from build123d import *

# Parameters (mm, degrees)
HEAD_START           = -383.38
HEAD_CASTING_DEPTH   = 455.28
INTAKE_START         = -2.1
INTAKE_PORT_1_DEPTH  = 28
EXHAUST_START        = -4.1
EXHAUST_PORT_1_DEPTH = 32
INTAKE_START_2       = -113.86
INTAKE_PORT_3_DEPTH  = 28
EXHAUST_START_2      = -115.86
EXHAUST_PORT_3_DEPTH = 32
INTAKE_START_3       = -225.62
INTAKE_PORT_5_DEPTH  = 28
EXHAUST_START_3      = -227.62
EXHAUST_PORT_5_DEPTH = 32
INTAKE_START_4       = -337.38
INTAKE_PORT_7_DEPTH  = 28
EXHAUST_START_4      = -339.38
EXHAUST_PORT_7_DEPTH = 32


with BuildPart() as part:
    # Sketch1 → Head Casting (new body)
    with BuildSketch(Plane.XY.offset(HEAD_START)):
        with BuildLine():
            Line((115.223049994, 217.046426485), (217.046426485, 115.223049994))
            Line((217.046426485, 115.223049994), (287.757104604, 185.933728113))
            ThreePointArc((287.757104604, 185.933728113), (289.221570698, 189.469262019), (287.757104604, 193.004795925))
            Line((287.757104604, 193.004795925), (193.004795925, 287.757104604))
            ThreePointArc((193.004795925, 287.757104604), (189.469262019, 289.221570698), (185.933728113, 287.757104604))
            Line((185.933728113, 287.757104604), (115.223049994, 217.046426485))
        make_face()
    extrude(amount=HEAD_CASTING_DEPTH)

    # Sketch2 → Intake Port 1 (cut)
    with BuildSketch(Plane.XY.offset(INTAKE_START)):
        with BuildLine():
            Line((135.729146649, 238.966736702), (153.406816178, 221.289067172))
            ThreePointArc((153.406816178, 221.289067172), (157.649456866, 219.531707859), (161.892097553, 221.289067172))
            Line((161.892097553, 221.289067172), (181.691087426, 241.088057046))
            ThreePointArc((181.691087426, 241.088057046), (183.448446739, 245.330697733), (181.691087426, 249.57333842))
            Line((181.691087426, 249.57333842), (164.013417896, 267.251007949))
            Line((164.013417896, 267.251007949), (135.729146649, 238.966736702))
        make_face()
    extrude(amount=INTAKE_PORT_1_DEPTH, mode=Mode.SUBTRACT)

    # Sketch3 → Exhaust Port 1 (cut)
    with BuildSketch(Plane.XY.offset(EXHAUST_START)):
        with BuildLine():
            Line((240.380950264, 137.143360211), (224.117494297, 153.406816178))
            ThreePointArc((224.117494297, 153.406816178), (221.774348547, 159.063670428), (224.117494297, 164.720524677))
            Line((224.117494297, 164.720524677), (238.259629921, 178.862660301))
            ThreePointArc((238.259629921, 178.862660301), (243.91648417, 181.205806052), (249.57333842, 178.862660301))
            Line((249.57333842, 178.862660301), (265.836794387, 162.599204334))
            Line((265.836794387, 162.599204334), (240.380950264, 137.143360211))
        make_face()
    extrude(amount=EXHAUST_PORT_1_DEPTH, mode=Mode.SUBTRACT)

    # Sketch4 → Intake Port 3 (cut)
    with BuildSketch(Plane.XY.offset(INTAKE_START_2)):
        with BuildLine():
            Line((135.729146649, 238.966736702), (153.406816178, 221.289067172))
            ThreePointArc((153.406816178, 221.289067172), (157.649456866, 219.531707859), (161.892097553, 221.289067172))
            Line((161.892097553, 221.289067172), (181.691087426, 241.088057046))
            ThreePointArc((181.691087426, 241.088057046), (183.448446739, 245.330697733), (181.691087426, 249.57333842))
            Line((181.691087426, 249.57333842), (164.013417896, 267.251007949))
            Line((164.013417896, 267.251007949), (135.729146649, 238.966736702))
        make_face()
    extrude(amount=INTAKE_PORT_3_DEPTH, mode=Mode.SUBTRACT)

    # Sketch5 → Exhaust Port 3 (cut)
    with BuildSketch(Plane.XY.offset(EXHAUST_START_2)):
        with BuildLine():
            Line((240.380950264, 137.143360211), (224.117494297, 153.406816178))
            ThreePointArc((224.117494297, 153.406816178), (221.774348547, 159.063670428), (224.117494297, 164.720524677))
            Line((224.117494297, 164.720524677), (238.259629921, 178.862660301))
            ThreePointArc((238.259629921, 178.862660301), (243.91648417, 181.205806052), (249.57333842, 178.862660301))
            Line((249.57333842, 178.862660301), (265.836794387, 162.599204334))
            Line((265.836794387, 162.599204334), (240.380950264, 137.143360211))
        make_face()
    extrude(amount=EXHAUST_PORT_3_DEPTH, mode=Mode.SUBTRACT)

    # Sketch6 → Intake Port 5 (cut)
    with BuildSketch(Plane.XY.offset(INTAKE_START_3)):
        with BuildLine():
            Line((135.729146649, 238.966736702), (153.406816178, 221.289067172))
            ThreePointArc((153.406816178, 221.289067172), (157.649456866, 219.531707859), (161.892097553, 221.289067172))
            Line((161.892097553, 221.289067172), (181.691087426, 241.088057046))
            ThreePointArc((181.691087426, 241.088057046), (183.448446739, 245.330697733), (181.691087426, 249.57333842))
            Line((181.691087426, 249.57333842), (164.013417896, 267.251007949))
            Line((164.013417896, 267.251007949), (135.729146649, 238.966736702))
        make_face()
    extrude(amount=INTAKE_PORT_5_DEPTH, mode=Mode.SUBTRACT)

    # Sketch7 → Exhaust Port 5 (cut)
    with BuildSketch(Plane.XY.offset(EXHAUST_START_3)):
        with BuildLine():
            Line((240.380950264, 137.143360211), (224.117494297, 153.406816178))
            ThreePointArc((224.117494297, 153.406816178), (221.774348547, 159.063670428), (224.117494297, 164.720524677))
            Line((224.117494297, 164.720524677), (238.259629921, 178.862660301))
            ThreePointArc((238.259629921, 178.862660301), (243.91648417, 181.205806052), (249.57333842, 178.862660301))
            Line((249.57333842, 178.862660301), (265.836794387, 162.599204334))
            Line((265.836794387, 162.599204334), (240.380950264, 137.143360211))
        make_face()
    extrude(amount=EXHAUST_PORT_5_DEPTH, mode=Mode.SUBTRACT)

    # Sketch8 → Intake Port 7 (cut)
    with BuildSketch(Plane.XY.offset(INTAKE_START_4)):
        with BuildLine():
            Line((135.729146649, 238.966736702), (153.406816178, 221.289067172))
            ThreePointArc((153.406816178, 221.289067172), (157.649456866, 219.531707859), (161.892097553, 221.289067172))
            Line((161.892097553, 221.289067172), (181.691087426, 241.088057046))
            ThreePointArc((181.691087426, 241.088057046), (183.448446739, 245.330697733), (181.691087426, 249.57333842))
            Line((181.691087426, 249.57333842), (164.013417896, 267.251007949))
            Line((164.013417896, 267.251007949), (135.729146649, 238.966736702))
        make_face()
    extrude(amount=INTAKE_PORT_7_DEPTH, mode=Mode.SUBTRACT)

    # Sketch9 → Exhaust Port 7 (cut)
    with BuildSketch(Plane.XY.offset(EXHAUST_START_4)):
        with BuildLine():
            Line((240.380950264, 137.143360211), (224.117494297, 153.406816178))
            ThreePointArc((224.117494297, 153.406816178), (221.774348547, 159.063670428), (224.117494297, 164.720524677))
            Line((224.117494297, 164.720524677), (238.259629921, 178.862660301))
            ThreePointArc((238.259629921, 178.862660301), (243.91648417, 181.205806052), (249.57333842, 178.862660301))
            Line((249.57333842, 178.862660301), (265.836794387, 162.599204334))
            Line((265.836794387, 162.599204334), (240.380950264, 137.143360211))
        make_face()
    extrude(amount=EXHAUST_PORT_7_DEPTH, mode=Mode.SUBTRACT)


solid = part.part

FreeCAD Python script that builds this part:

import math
import FreeCAD as App
import Part
import Sketcher
from FreeCAD import Vector

doc = App.newDocument("Part")
params = doc.addObject("Spreadsheet::Sheet", "Params")
for row, (alias, value) in enumerate([
    ("sketch1_radius", "5 mm"),
    ("sketch1_length", "144 mm"),
    ("sketch1_length2", "100 mm"),
    ("pad1_length", "455.28 mm"),
    ("sketch2_radius", "6 mm"),
    ("sketch2_length", "25 mm"),
    ("sketch2_length2", "28 mm"),
    ("pocket1_length", "28 mm"),
    ("sketch3_radius", "8 mm"),
    ("sketch3_length", "23 mm"),
    ("sketch3_length2", "36 mm"),
    ("pocket2_length", "32 mm"),
    ("sketch4_radius", "6 mm"),
    ("sketch4_length", "25 mm"),
    ("sketch4_length2", "28 mm"),
    ("pocket3_length", "28 mm"),
    ("sketch5_radius", "8 mm"),
    ("sketch5_length", "23 mm"),
    ("sketch5_length2", "36 mm"),
    ("pocket4_length", "32 mm"),
    ("sketch6_radius", "6 mm"),
    ("sketch6_length", "25 mm"),
    ("sketch6_length2", "28 mm"),
    ("pocket5_length", "28 mm"),
    ("sketch7_radius", "8 mm"),
    ("sketch7_length", "23 mm"),
    ("sketch7_length2", "36 mm"),
    ("pocket6_length", "32 mm"),
    ("sketch8_radius", "6 mm"),
    ("sketch8_length", "25 mm"),
    ("sketch8_length2", "28 mm"),
    ("pocket7_length", "28 mm"),
    ("sketch9_radius", "8 mm"),
    ("sketch9_length", "23 mm"),
    ("sketch9_length2", "36 mm"),
    ("pocket8_length", "32 mm"),
], start=1):
    params.set(f"A{row}", alias)
    params.set(f"B{row}", "=" + value)
    params.setAlias(f"B{row}", alias)

body = doc.addObject("PartDesign::Body", "Body")

sketch1 = body.newObject("Sketcher::SketchObject", "Sketch")
sketch1.AttachmentSupport = (doc.getObject("XY_Plane"), [""])
sketch1.MapMode = "FlatFace"
sketch1.AttachmentOffset = App.Placement(Vector(0, 0, -383.38), App.Rotation())
sketch1.addGeometry([
    Part.LineSegment(Vector(115.22305, 217.046426, 0), Vector(217.046426, 115.22305, 0)),
    Part.LineSegment(Vector(217.046426, 115.22305, 0), Vector(287.757105, 185.933728, 0)),
    Part.ArcOfCircle(Part.Circle(Vector(284.221571, 189.469262, 0), Vector(0, 0, 1), 5), math.radians(-45), math.radians(45)),
    Part.LineSegment(Vector(287.757105, 193.004796, 0), Vector(193.004796, 287.757105, 0)),
    Part.ArcOfCircle(Part.Circle(Vector(189.469262, 284.221571, 0), Vector(0, 0, 1), 5), math.radians(45), math.radians(135)),
    Part.LineSegment(Vector(185.933728, 287.757105, 0), Vector(115.22305, 217.046426, 0)),
], False)
sketch1.addConstraint([
    Sketcher.Constraint("Coincident", 0, 2, 1, 1),
    Sketcher.Constraint("Tangent", 1, 2, 2, 1),
    Sketcher.Constraint("Tangent", 2, 2, 3, 1),
    Sketcher.Constraint("Tangent", 3, 2, 4, 1),
    Sketcher.Constraint("Tangent", 4, 2, 5, 1),
    Sketcher.Constraint("Coincident", 5, 2, 0, 1),
    Sketcher.Constraint("Equal", 2, 4),
    Sketcher.Constraint("Perpendicular", 0, 1),
    Sketcher.Constraint("Perpendicular", 1, 3),
    Sketcher.Constraint("Perpendicular", 3, 5),
    Sketcher.Constraint("Horizontal", 3, 2, 4, 2),
    Sketcher.Constraint("Radius", 2, 5.0),
    Sketcher.Constraint("Distance", 0, 144.0),
    Sketcher.Constraint("Distance", 1, 100.0),
    Sketcher.Constraint("DistanceX", -1, 1, 2, 3, 284.221571),
    Sketcher.Constraint("DistanceY", -1, 1, 4, 3, 284.221571),
])
sketch1.setExpression("Constraints[11]", "Params.sketch1_radius")
sketch1.setExpression("Constraints[12]", "Params.sketch1_length")
sketch1.setExpression("Constraints[13]", "Params.sketch1_length2")
pad1 = body.newObject("PartDesign::Pad", "Pad")
pad1.Profile = sketch1
pad1.setExpression("Length", "Params.pad1_length")

sketch2 = body.newObject("Sketcher::SketchObject", "Sketch001")
sketch2.AttachmentSupport = (doc.getObject("XY_Plane"), [""])
sketch2.MapMode = "FlatFace"
sketch2.AttachmentOffset = App.Placement(Vector(0, 0, -2.1), App.Rotation())
sketch2.addGeometry([
    Part.LineSegment(Vector(135.729147, 238.966737, 0), Vector(153.406816, 221.289067, 0)),
    Part.ArcOfCircle(Part.Circle(Vector(157.649457, 225.531708, 0), Vector(0, 0, 1), 6), math.radians(-135), math.radians(-45)),
    Part.LineSegment(Vector(161.892098, 221.289067, 0), Vector(181.691087, 241.088057, 0)),
    Part.ArcOfCircle(Part.Circle(Vector(177.448447, 245.330698, 0), Vector(0, 0, 1), 6), math.radians(-45), math.radians(45)),
    Part.LineSegment(Vector(181.691087, 249.573338, 0), Vector(164.013418, 267.251008, 0)),
    Part.LineSegment(Vector(164.013418, 267.251008, 0), Vector(135.729147, 238.966737, 0)),
], False)
sketch2.addConstraint([
    Sketcher.Constraint("Tangent", 0, 2, 1, 1),
    Sketcher.Constraint("Tangent", 1, 2, 2, 1),
    Sketcher.Constraint("Tangent", 2, 2, 3, 1),
    Sketcher.Constraint("Tangent", 3, 2, 4, 1),
    Sketcher.Constraint("Coincident", 4, 2, 5, 1),
    Sketcher.Constraint("Coincident", 5, 2, 0, 1),
    Sketcher.Constraint("Equal", 1, 3),
    Sketcher.Constraint("Perpendicular", 0, 2),
    Sketcher.Constraint("Perpendicular", 2, 4),
    Sketcher.Constraint("Perpendicular", 4, 5),
    Sketcher.Constraint("Horizontal", 0, 2, 1, 2),
    Sketcher.Constraint("Radius", 1, 6.0),
    Sketcher.Constraint("Distance", 0, 25.0),
    Sketcher.Constraint("Distance", 2, 28.0),
    Sketcher.Constraint("DistanceY", -1, 1, 3, 2, 249.573338),
    Sketcher.Constraint("DistanceX", -1, 1, 1, 3, 157.649457),
])
sketch2.setExpression("Constraints[11]", "Params.sketch2_radius")
sketch2.setExpression("Constraints[12]", "Params.sketch2_length")
sketch2.setExpression("Constraints[13]", "Params.sketch2_length2")
pocket1 = body.newObject("PartDesign::Pocket", "Pocket")
pocket1.Profile = sketch2
pocket1.setExpression("Length", "Params.pocket1_length")
pocket1.Reversed = True

sketch3 = body.newObject("Sketcher::SketchObject", "Sketch002")
sketch3.AttachmentSupport = (doc.getObject("XY_Plane"), [""])
sketch3.MapMode = "FlatFace"
sketch3.AttachmentOffset = App.Placement(Vector(0, 0, -4.1), App.Rotation())
sketch3.addGeometry([
    Part.LineSegment(Vector(224.117494, 153.406816, 0), Vector(240.38095, 137.14336, 0)),
    Part.LineSegment(Vector(240.38095, 137.14336, 0), Vector(265.836794, 162.599204, 0)),
    Part.LineSegment(Vector(265.836794, 162.599204, 0), Vector(249.573338, 178.86266, 0)),
    Part.ArcOfCircle(Part.Circle(Vector(243.916484, 173.205806, 0), Vector(0, 0, 1), 8), math.radians(45), math.radians(135)),
    Part.LineSegment(Vector(238.25963, 178.86266, 0), Vector(224.117494, 164.720525, 0)),
    Part.ArcOfCircle(Part.Circle(Vector(229.774349, 159.06367, 0), Vector(0, 0, 1), 8), math.radians(135), math.radians(225)),
], False)
sketch3.addConstraint([
    Sketcher.Constraint("Coincident", 0, 2, 1, 1),
    Sketcher.Constraint("Coincident", 1, 2, 2, 1),
    Sketcher.Constraint("Tangent", 2, 2, 3, 1),
    Sketcher.Constraint("Tangent", 3, 2, 4, 1),
    Sketcher.Constraint("Tangent", 4, 2, 5, 1),
    Sketcher.Constraint("Tangent", 5, 2, 0, 1),
    Sketcher.Constraint("Equal", 3, 5),
    Sketcher.Constraint("Perpendicular", 0, 1),
    Sketcher.Constraint("Perpendicular", 1, 2),
    Sketcher.Constraint("Perpendicular", 2, 4),
    Sketcher.Constraint("Horizontal", 2, 2, 3, 2),
    Sketcher.Constraint("Radius", 3, 8.0),
    Sketcher.Constraint("Distance", 0, 23.0),
    Sketcher.Constraint("Distance", 1, 36.0),
    Sketcher.Constraint("DistanceX", -1, 1, 5, 3, 229.774349),
    Sketcher.Constraint("DistanceY", -1, 1, 5, 3, 159.06367),
])
sketch3.setExpression("Constraints[11]", "Params.sketch3_radius")
sketch3.setExpression("Constraints[12]", "Params.sketch3_length")
sketch3.setExpression("Constraints[13]", "Params.sketch3_length2")
pocket2 = body.newObject("PartDesign::Pocket", "Pocket001")
pocket2.Profile = sketch3
pocket2.setExpression("Length", "Params.pocket2_length")
pocket2.Reversed = True

sketch4 = body.newObject("Sketcher::SketchObject", "Sketch003")
sketch4.AttachmentSupport = (doc.getObject("XY_Plane"), [""])
sketch4.MapMode = "FlatFace"
sketch4.AttachmentOffset = App.Placement(Vector(0, 0, -113.86), App.Rotation())
sketch4.addGeometry([
    Part.LineSegment(Vector(135.729147, 238.966737, 0), Vector(153.406816, 221.289067, 0)),
    Part.ArcOfCircle(Part.Circle(Vector(157.649457, 225.531708, 0), Vector(0, 0, 1), 6), math.radians(-135), math.radians(-45)),
    Part.LineSegment(Vector(161.892098, 221.289067, 0), Vector(181.691087, 241.088057, 0)),
    Part.ArcOfCircle(Part.Circle(Vector(177.448447, 245.330698, 0), Vector(0, 0, 1), 6), math.radians(-45), math.radians(45)),
    Part.LineSegment(Vector(181.691087, 249.573338, 0), Vector(164.013418, 267.251008, 0)),
    Part.LineSegment(Vector(164.013418, 267.251008, 0), Vector(135.729147, 238.966737, 0)),
], False)
sketch4.addConstraint([
    Sketcher.Constraint("Tangent", 0, 2, 1, 1),
    Sketcher.Constraint("Tangent", 1, 2, 2, 1),
    Sketcher.Constraint("Tangent", 2, 2, 3, 1),
    Sketcher.Constraint("Tangent", 3, 2, 4, 1),
    Sketcher.Constraint("Coincident", 4, 2, 5, 1),
    Sketcher.Constraint("Coincident", 5, 2, 0, 1),
    Sketcher.Constraint("Equal", 1, 3),
    Sketcher.Constraint("Perpendicular", 0, 2),
    Sketcher.Constraint("Perpendicular", 2, 4),
    Sketcher.Constraint("Perpendicular", 4, 5),
    Sketcher.Constraint("Horizontal", 0, 2, 1, 2),
    Sketcher.Constraint("Radius", 1, 6.0),
    Sketcher.Constraint("Distance", 0, 25.0),
    Sketcher.Constraint("Distance", 2, 28.0),
    Sketcher.Constraint("DistanceY", -1, 1, 3, 2, 249.573338),
    Sketcher.Constraint("DistanceX", -1, 1, 1, 3, 157.649457),
])
sketch4.setExpression("Constraints[11]", "Params.sketch4_radius")
sketch4.setExpression("Constraints[12]", "Params.sketch4_length")
sketch4.setExpression("Constraints[13]", "Params.sketch4_length2")
pocket3 = body.newObject("PartDesign::Pocket", "Pocket002")
pocket3.Profile = sketch4
pocket3.setExpression("Length", "Params.pocket3_length")
pocket3.Reversed = True

sketch5 = body.newObject("Sketcher::SketchObject", "Sketch004")
sketch5.AttachmentSupport = (doc.getObject("XY_Plane"), [""])
sketch5.MapMode = "FlatFace"
sketch5.AttachmentOffset = App.Placement(Vector(0, 0, -115.86), App.Rotation())
sketch5.addGeometry([
    Part.LineSegment(Vector(224.117494, 153.406816, 0), Vector(240.38095, 137.14336, 0)),
    Part.LineSegment(Vector(240.38095, 137.14336, 0), Vector(265.836794, 162.599204, 0)),
    Part.LineSegment(Vector(265.836794, 162.599204, 0), Vector(249.573338, 178.86266, 0)),
    Part.ArcOfCircle(Part.Circle(Vector(243.916484, 173.205806, 0), Vector(0, 0, 1), 8), math.radians(45), math.radians(135)),
    Part.LineSegment(Vector(238.25963, 178.86266, 0), Vector(224.117494, 164.720525, 0)),
    Part.ArcOfCircle(Part.Circle(Vector(229.774349, 159.06367, 0), Vector(0, 0, 1), 8), math.radians(135), math.radians(225)),
], False)
sketch5.addConstraint([
    Sketcher.Constraint("Coincident", 0, 2, 1, 1),
    Sketcher.Constraint("Coincident", 1, 2, 2, 1),
    Sketcher.Constraint("Tangent", 2, 2, 3, 1),
    Sketcher.Constraint("Tangent", 3, 2, 4, 1),
    Sketcher.Constraint("Tangent", 4, 2, 5, 1),
    Sketcher.Constraint("Tangent", 5, 2, 0, 1),
    Sketcher.Constraint("Equal", 3, 5),
    Sketcher.Constraint("Perpendicular", 0, 1),
    Sketcher.Constraint("Perpendicular", 1, 2),
    Sketcher.Constraint("Perpendicular", 2, 4),
    Sketcher.Constraint("Horizontal", 2, 2, 3, 2),
    Sketcher.Constraint("Radius", 3, 8.0),
    Sketcher.Constraint("Distance", 0, 23.0),
    Sketcher.Constraint("Distance", 1, 36.0),
    Sketcher.Constraint("DistanceX", -1, 1, 5, 3, 229.774349),
    Sketcher.Constraint("DistanceY", -1, 1, 5, 3, 159.06367),
])
sketch5.setExpression("Constraints[11]", "Params.sketch5_radius")
sketch5.setExpression("Constraints[12]", "Params.sketch5_length")
sketch5.setExpression("Constraints[13]", "Params.sketch5_length2")
pocket4 = body.newObject("PartDesign::Pocket", "Pocket003")
pocket4.Profile = sketch5
pocket4.setExpression("Length", "Params.pocket4_length")
pocket4.Reversed = True

sketch6 = body.newObject("Sketcher::SketchObject", "Sketch005")
sketch6.AttachmentSupport = (doc.getObject("XY_Plane"), [""])
sketch6.MapMode = "FlatFace"
sketch6.AttachmentOffset = App.Placement(Vector(0, 0, -225.62), App.Rotation())
sketch6.addGeometry([
    Part.LineSegment(Vector(135.729147, 238.966737, 0), Vector(153.406816, 221.289067, 0)),
    Part.ArcOfCircle(Part.Circle(Vector(157.649457, 225.531708, 0), Vector(0, 0, 1), 6), math.radians(-135), math.radians(-45)),
    Part.LineSegment(Vector(161.892098, 221.289067, 0), Vector(181.691087, 241.088057, 0)),
    Part.ArcOfCircle(Part.Circle(Vector(177.448447, 245.330698, 0), Vector(0, 0, 1), 6), math.radians(-45), math.radians(45)),
    Part.LineSegment(Vector(181.691087, 249.573338, 0), Vector(164.013418, 267.251008, 0)),
    Part.LineSegment(Vector(164.013418, 267.251008, 0), Vector(135.729147, 238.966737, 0)),
], False)
sketch6.addConstraint([
    Sketcher.Constraint("Tangent", 0, 2, 1, 1),
    Sketcher.Constraint("Tangent", 1, 2, 2, 1),
    Sketcher.Constraint("Tangent", 2, 2, 3, 1),
    Sketcher.Constraint("Tangent", 3, 2, 4, 1),
    Sketcher.Constraint("Coincident", 4, 2, 5, 1),
    Sketcher.Constraint("Coincident", 5, 2, 0, 1),
    Sketcher.Constraint("Equal", 1, 3),
    Sketcher.Constraint("Perpendicular", 0, 2),
    Sketcher.Constraint("Perpendicular", 2, 4),
    Sketcher.Constraint("Perpendicular", 4, 5),
    Sketcher.Constraint("Horizontal", 0, 2, 1, 2),
    Sketcher.Constraint("Radius", 1, 6.0),
    Sketcher.Constraint("Distance", 0, 25.0),
    Sketcher.Constraint("Distance", 2, 28.0),
    Sketcher.Constraint("DistanceY", -1, 1, 3, 2, 249.573338),
    Sketcher.Constraint("DistanceX", -1, 1, 1, 3, 157.649457),
])
sketch6.setExpression("Constraints[11]", "Params.sketch6_radius")
sketch6.setExpression("Constraints[12]", "Params.sketch6_length")
sketch6.setExpression("Constraints[13]", "Params.sketch6_length2")
pocket5 = body.newObject("PartDesign::Pocket", "Pocket004")
pocket5.Profile = sketch6
pocket5.setExpression("Length", "Params.pocket5_length")
pocket5.Reversed = True

sketch7 = body.newObject("Sketcher::SketchObject", "Sketch006")
sketch7.AttachmentSupport = (doc.getObject("XY_Plane"), [""])
sketch7.MapMode = "FlatFace"
sketch7.AttachmentOffset = App.Placement(Vector(0, 0, -227.62), App.Rotation())
sketch7.addGeometry([
    Part.LineSegment(Vector(224.117494, 153.406816, 0), Vector(240.38095, 137.14336, 0)),
    Part.LineSegment(Vector(240.38095, 137.14336, 0), Vector(265.836794, 162.599204, 0)),
    Part.LineSegment(Vector(265.836794, 162.599204, 0), Vector(249.573338, 178.86266, 0)),
    Part.ArcOfCircle(Part.Circle(Vector(243.916484, 173.205806, 0), Vector(0, 0, 1), 8), math.radians(45), math.radians(135)),
    Part.LineSegment(Vector(238.25963, 178.86266, 0), Vector(224.117494, 164.720525, 0)),
    Part.ArcOfCircle(Part.Circle(Vector(229.774349, 159.06367, 0), Vector(0, 0, 1), 8), math.radians(135), math.radians(225)),
], False)
sketch7.addConstraint([
    Sketcher.Constraint("Coincident", 0, 2, 1, 1),
    Sketcher.Constraint("Coincident", 1, 2, 2, 1),
    Sketcher.Constraint("Tangent", 2, 2, 3, 1),
    Sketcher.Constraint("Tangent", 3, 2, 4, 1),
    Sketcher.Constraint("Tangent", 4, 2, 5, 1),
    Sketcher.Constraint("Tangent", 5, 2, 0, 1),
    Sketcher.Constraint("Equal", 3, 5),
    Sketcher.Constraint("Perpendicular", 0, 1),
    Sketcher.Constraint("Perpendicular", 1, 2),
    Sketcher.Constraint("Perpendicular", 2, 4),
    Sketcher.Constraint("Horizontal", 2, 2, 3, 2),
    Sketcher.Constraint("Radius", 3, 8.0),
    Sketcher.Constraint("Distance", 0, 23.0),
    Sketcher.Constraint("Distance", 1, 36.0),
    Sketcher.Constraint("DistanceX", -1, 1, 5, 3, 229.774349),
    Sketcher.Constraint("DistanceY", -1, 1, 5, 3, 159.06367),
])
sketch7.setExpression("Constraints[11]", "Params.sketch7_radius")
sketch7.setExpression("Constraints[12]", "Params.sketch7_length")
sketch7.setExpression("Constraints[13]", "Params.sketch7_length2")
pocket6 = body.newObject("PartDesign::Pocket", "Pocket005")
pocket6.Profile = sketch7
pocket6.setExpression("Length", "Params.pocket6_length")
pocket6.Reversed = True

sketch8 = body.newObject("Sketcher::SketchObject", "Sketch007")
sketch8.AttachmentSupport = (doc.getObject("XY_Plane"), [""])
sketch8.MapMode = "FlatFace"
sketch8.AttachmentOffset = App.Placement(Vector(0, 0, -337.38), App.Rotation())
sketch8.addGeometry([
    Part.LineSegment(Vector(135.729147, 238.966737, 0), Vector(153.406816, 221.289067, 0)),
    Part.ArcOfCircle(Part.Circle(Vector(157.649457, 225.531708, 0), Vector(0, 0, 1), 6), math.radians(-135), math.radians(-45)),
    Part.LineSegment(Vector(161.892098, 221.289067, 0), Vector(181.691087, 241.088057, 0)),
    Part.ArcOfCircle(Part.Circle(Vector(177.448447, 245.330698, 0), Vector(0, 0, 1), 6), math.radians(-45), math.radians(45)),
    Part.LineSegment(Vector(181.691087, 249.573338, 0), Vector(164.013418, 267.251008, 0)),
    Part.LineSegment(Vector(164.013418, 267.251008, 0), Vector(135.729147, 238.966737, 0)),
], False)
sketch8.addConstraint([
    Sketcher.Constraint("Tangent", 0, 2, 1, 1),
    Sketcher.Constraint("Tangent", 1, 2, 2, 1),
    Sketcher.Constraint("Tangent", 2, 2, 3, 1),
    Sketcher.Constraint("Tangent", 3, 2, 4, 1),
    Sketcher.Constraint("Coincident", 4, 2, 5, 1),
    Sketcher.Constraint("Coincident", 5, 2, 0, 1),
    Sketcher.Constraint("Equal", 1, 3),
    Sketcher.Constraint("Perpendicular", 0, 2),
    Sketcher.Constraint("Perpendicular", 2, 4),
    Sketcher.Constraint("Perpendicular", 4, 5),
    Sketcher.Constraint("Horizontal", 0, 2, 1, 2),
    Sketcher.Constraint("Radius", 1, 6.0),
    Sketcher.Constraint("Distance", 0, 25.0),
    Sketcher.Constraint("Distance", 2, 28.0),
    Sketcher.Constraint("DistanceY", -1, 1, 3, 2, 249.573338),
    Sketcher.Constraint("DistanceX", -1, 1, 1, 3, 157.649457),
])
sketch8.setExpression("Constraints[11]", "Params.sketch8_radius")
sketch8.setExpression("Constraints[12]", "Params.sketch8_length")
sketch8.setExpression("Constraints[13]", "Params.sketch8_length2")
pocket7 = body.newObject("PartDesign::Pocket", "Pocket006")
pocket7.Profile = sketch8
pocket7.setExpression("Length", "Params.pocket7_length")
pocket7.Reversed = True

sketch9 = body.newObject("Sketcher::SketchObject", "Sketch008")
sketch9.AttachmentSupport = (doc.getObject("XY_Plane"), [""])
sketch9.MapMode = "FlatFace"
sketch9.AttachmentOffset = App.Placement(Vector(0, 0, -339.38), App.Rotation())
sketch9.addGeometry([
    Part.LineSegment(Vector(224.117494, 153.406816, 0), Vector(240.38095, 137.14336, 0)),
    Part.LineSegment(Vector(240.38095, 137.14336, 0), Vector(265.836794, 162.599204, 0)),
    Part.LineSegment(Vector(265.836794, 162.599204, 0), Vector(249.573338, 178.86266, 0)),
    Part.ArcOfCircle(Part.Circle(Vector(243.916484, 173.205806, 0), Vector(0, 0, 1), 8), math.radians(45), math.radians(135)),
    Part.LineSegment(Vector(238.25963, 178.86266, 0), Vector(224.117494, 164.720525, 0)),
    Part.ArcOfCircle(Part.Circle(Vector(229.774349, 159.06367, 0), Vector(0, 0, 1), 8), math.radians(135), math.radians(225)),
], False)
sketch9.addConstraint([
    Sketcher.Constraint("Coincident", 0, 2, 1, 1),
    Sketcher.Constraint("Coincident", 1, 2, 2, 1),
    Sketcher.Constraint("Tangent", 2, 2, 3, 1),
    Sketcher.Constraint("Tangent", 3, 2, 4, 1),
    Sketcher.Constraint("Tangent", 4, 2, 5, 1),
    Sketcher.Constraint("Tangent", 5, 2, 0, 1),
    Sketcher.Constraint("Equal", 3, 5),
    Sketcher.Constraint("Perpendicular", 0, 1),
    Sketcher.Constraint("Perpendicular", 1, 2),
    Sketcher.Constraint("Perpendicular", 2, 4),
    Sketcher.Constraint("Horizontal", 2, 2, 3, 2),
    Sketcher.Constraint("Radius", 3, 8.0),
    Sketcher.Constraint("Distance", 0, 23.0),
    Sketcher.Constraint("Distance", 1, 36.0),
    Sketcher.Constraint("DistanceX", -1, 1, 5, 3, 229.774349),
    Sketcher.Constraint("DistanceY", -1, 1, 5, 3, 159.06367),
])
sketch9.setExpression("Constraints[11]", "Params.sketch9_radius")
sketch9.setExpression("Constraints[12]", "Params.sketch9_length")
sketch9.setExpression("Constraints[13]", "Params.sketch9_length2")
pocket8 = body.newObject("PartDesign::Pocket", "Pocket007")
pocket8.Profile = sketch9
pocket8.setExpression("Length", "Params.pocket8_length")
pocket8.Reversed = True

doc.recompute()
